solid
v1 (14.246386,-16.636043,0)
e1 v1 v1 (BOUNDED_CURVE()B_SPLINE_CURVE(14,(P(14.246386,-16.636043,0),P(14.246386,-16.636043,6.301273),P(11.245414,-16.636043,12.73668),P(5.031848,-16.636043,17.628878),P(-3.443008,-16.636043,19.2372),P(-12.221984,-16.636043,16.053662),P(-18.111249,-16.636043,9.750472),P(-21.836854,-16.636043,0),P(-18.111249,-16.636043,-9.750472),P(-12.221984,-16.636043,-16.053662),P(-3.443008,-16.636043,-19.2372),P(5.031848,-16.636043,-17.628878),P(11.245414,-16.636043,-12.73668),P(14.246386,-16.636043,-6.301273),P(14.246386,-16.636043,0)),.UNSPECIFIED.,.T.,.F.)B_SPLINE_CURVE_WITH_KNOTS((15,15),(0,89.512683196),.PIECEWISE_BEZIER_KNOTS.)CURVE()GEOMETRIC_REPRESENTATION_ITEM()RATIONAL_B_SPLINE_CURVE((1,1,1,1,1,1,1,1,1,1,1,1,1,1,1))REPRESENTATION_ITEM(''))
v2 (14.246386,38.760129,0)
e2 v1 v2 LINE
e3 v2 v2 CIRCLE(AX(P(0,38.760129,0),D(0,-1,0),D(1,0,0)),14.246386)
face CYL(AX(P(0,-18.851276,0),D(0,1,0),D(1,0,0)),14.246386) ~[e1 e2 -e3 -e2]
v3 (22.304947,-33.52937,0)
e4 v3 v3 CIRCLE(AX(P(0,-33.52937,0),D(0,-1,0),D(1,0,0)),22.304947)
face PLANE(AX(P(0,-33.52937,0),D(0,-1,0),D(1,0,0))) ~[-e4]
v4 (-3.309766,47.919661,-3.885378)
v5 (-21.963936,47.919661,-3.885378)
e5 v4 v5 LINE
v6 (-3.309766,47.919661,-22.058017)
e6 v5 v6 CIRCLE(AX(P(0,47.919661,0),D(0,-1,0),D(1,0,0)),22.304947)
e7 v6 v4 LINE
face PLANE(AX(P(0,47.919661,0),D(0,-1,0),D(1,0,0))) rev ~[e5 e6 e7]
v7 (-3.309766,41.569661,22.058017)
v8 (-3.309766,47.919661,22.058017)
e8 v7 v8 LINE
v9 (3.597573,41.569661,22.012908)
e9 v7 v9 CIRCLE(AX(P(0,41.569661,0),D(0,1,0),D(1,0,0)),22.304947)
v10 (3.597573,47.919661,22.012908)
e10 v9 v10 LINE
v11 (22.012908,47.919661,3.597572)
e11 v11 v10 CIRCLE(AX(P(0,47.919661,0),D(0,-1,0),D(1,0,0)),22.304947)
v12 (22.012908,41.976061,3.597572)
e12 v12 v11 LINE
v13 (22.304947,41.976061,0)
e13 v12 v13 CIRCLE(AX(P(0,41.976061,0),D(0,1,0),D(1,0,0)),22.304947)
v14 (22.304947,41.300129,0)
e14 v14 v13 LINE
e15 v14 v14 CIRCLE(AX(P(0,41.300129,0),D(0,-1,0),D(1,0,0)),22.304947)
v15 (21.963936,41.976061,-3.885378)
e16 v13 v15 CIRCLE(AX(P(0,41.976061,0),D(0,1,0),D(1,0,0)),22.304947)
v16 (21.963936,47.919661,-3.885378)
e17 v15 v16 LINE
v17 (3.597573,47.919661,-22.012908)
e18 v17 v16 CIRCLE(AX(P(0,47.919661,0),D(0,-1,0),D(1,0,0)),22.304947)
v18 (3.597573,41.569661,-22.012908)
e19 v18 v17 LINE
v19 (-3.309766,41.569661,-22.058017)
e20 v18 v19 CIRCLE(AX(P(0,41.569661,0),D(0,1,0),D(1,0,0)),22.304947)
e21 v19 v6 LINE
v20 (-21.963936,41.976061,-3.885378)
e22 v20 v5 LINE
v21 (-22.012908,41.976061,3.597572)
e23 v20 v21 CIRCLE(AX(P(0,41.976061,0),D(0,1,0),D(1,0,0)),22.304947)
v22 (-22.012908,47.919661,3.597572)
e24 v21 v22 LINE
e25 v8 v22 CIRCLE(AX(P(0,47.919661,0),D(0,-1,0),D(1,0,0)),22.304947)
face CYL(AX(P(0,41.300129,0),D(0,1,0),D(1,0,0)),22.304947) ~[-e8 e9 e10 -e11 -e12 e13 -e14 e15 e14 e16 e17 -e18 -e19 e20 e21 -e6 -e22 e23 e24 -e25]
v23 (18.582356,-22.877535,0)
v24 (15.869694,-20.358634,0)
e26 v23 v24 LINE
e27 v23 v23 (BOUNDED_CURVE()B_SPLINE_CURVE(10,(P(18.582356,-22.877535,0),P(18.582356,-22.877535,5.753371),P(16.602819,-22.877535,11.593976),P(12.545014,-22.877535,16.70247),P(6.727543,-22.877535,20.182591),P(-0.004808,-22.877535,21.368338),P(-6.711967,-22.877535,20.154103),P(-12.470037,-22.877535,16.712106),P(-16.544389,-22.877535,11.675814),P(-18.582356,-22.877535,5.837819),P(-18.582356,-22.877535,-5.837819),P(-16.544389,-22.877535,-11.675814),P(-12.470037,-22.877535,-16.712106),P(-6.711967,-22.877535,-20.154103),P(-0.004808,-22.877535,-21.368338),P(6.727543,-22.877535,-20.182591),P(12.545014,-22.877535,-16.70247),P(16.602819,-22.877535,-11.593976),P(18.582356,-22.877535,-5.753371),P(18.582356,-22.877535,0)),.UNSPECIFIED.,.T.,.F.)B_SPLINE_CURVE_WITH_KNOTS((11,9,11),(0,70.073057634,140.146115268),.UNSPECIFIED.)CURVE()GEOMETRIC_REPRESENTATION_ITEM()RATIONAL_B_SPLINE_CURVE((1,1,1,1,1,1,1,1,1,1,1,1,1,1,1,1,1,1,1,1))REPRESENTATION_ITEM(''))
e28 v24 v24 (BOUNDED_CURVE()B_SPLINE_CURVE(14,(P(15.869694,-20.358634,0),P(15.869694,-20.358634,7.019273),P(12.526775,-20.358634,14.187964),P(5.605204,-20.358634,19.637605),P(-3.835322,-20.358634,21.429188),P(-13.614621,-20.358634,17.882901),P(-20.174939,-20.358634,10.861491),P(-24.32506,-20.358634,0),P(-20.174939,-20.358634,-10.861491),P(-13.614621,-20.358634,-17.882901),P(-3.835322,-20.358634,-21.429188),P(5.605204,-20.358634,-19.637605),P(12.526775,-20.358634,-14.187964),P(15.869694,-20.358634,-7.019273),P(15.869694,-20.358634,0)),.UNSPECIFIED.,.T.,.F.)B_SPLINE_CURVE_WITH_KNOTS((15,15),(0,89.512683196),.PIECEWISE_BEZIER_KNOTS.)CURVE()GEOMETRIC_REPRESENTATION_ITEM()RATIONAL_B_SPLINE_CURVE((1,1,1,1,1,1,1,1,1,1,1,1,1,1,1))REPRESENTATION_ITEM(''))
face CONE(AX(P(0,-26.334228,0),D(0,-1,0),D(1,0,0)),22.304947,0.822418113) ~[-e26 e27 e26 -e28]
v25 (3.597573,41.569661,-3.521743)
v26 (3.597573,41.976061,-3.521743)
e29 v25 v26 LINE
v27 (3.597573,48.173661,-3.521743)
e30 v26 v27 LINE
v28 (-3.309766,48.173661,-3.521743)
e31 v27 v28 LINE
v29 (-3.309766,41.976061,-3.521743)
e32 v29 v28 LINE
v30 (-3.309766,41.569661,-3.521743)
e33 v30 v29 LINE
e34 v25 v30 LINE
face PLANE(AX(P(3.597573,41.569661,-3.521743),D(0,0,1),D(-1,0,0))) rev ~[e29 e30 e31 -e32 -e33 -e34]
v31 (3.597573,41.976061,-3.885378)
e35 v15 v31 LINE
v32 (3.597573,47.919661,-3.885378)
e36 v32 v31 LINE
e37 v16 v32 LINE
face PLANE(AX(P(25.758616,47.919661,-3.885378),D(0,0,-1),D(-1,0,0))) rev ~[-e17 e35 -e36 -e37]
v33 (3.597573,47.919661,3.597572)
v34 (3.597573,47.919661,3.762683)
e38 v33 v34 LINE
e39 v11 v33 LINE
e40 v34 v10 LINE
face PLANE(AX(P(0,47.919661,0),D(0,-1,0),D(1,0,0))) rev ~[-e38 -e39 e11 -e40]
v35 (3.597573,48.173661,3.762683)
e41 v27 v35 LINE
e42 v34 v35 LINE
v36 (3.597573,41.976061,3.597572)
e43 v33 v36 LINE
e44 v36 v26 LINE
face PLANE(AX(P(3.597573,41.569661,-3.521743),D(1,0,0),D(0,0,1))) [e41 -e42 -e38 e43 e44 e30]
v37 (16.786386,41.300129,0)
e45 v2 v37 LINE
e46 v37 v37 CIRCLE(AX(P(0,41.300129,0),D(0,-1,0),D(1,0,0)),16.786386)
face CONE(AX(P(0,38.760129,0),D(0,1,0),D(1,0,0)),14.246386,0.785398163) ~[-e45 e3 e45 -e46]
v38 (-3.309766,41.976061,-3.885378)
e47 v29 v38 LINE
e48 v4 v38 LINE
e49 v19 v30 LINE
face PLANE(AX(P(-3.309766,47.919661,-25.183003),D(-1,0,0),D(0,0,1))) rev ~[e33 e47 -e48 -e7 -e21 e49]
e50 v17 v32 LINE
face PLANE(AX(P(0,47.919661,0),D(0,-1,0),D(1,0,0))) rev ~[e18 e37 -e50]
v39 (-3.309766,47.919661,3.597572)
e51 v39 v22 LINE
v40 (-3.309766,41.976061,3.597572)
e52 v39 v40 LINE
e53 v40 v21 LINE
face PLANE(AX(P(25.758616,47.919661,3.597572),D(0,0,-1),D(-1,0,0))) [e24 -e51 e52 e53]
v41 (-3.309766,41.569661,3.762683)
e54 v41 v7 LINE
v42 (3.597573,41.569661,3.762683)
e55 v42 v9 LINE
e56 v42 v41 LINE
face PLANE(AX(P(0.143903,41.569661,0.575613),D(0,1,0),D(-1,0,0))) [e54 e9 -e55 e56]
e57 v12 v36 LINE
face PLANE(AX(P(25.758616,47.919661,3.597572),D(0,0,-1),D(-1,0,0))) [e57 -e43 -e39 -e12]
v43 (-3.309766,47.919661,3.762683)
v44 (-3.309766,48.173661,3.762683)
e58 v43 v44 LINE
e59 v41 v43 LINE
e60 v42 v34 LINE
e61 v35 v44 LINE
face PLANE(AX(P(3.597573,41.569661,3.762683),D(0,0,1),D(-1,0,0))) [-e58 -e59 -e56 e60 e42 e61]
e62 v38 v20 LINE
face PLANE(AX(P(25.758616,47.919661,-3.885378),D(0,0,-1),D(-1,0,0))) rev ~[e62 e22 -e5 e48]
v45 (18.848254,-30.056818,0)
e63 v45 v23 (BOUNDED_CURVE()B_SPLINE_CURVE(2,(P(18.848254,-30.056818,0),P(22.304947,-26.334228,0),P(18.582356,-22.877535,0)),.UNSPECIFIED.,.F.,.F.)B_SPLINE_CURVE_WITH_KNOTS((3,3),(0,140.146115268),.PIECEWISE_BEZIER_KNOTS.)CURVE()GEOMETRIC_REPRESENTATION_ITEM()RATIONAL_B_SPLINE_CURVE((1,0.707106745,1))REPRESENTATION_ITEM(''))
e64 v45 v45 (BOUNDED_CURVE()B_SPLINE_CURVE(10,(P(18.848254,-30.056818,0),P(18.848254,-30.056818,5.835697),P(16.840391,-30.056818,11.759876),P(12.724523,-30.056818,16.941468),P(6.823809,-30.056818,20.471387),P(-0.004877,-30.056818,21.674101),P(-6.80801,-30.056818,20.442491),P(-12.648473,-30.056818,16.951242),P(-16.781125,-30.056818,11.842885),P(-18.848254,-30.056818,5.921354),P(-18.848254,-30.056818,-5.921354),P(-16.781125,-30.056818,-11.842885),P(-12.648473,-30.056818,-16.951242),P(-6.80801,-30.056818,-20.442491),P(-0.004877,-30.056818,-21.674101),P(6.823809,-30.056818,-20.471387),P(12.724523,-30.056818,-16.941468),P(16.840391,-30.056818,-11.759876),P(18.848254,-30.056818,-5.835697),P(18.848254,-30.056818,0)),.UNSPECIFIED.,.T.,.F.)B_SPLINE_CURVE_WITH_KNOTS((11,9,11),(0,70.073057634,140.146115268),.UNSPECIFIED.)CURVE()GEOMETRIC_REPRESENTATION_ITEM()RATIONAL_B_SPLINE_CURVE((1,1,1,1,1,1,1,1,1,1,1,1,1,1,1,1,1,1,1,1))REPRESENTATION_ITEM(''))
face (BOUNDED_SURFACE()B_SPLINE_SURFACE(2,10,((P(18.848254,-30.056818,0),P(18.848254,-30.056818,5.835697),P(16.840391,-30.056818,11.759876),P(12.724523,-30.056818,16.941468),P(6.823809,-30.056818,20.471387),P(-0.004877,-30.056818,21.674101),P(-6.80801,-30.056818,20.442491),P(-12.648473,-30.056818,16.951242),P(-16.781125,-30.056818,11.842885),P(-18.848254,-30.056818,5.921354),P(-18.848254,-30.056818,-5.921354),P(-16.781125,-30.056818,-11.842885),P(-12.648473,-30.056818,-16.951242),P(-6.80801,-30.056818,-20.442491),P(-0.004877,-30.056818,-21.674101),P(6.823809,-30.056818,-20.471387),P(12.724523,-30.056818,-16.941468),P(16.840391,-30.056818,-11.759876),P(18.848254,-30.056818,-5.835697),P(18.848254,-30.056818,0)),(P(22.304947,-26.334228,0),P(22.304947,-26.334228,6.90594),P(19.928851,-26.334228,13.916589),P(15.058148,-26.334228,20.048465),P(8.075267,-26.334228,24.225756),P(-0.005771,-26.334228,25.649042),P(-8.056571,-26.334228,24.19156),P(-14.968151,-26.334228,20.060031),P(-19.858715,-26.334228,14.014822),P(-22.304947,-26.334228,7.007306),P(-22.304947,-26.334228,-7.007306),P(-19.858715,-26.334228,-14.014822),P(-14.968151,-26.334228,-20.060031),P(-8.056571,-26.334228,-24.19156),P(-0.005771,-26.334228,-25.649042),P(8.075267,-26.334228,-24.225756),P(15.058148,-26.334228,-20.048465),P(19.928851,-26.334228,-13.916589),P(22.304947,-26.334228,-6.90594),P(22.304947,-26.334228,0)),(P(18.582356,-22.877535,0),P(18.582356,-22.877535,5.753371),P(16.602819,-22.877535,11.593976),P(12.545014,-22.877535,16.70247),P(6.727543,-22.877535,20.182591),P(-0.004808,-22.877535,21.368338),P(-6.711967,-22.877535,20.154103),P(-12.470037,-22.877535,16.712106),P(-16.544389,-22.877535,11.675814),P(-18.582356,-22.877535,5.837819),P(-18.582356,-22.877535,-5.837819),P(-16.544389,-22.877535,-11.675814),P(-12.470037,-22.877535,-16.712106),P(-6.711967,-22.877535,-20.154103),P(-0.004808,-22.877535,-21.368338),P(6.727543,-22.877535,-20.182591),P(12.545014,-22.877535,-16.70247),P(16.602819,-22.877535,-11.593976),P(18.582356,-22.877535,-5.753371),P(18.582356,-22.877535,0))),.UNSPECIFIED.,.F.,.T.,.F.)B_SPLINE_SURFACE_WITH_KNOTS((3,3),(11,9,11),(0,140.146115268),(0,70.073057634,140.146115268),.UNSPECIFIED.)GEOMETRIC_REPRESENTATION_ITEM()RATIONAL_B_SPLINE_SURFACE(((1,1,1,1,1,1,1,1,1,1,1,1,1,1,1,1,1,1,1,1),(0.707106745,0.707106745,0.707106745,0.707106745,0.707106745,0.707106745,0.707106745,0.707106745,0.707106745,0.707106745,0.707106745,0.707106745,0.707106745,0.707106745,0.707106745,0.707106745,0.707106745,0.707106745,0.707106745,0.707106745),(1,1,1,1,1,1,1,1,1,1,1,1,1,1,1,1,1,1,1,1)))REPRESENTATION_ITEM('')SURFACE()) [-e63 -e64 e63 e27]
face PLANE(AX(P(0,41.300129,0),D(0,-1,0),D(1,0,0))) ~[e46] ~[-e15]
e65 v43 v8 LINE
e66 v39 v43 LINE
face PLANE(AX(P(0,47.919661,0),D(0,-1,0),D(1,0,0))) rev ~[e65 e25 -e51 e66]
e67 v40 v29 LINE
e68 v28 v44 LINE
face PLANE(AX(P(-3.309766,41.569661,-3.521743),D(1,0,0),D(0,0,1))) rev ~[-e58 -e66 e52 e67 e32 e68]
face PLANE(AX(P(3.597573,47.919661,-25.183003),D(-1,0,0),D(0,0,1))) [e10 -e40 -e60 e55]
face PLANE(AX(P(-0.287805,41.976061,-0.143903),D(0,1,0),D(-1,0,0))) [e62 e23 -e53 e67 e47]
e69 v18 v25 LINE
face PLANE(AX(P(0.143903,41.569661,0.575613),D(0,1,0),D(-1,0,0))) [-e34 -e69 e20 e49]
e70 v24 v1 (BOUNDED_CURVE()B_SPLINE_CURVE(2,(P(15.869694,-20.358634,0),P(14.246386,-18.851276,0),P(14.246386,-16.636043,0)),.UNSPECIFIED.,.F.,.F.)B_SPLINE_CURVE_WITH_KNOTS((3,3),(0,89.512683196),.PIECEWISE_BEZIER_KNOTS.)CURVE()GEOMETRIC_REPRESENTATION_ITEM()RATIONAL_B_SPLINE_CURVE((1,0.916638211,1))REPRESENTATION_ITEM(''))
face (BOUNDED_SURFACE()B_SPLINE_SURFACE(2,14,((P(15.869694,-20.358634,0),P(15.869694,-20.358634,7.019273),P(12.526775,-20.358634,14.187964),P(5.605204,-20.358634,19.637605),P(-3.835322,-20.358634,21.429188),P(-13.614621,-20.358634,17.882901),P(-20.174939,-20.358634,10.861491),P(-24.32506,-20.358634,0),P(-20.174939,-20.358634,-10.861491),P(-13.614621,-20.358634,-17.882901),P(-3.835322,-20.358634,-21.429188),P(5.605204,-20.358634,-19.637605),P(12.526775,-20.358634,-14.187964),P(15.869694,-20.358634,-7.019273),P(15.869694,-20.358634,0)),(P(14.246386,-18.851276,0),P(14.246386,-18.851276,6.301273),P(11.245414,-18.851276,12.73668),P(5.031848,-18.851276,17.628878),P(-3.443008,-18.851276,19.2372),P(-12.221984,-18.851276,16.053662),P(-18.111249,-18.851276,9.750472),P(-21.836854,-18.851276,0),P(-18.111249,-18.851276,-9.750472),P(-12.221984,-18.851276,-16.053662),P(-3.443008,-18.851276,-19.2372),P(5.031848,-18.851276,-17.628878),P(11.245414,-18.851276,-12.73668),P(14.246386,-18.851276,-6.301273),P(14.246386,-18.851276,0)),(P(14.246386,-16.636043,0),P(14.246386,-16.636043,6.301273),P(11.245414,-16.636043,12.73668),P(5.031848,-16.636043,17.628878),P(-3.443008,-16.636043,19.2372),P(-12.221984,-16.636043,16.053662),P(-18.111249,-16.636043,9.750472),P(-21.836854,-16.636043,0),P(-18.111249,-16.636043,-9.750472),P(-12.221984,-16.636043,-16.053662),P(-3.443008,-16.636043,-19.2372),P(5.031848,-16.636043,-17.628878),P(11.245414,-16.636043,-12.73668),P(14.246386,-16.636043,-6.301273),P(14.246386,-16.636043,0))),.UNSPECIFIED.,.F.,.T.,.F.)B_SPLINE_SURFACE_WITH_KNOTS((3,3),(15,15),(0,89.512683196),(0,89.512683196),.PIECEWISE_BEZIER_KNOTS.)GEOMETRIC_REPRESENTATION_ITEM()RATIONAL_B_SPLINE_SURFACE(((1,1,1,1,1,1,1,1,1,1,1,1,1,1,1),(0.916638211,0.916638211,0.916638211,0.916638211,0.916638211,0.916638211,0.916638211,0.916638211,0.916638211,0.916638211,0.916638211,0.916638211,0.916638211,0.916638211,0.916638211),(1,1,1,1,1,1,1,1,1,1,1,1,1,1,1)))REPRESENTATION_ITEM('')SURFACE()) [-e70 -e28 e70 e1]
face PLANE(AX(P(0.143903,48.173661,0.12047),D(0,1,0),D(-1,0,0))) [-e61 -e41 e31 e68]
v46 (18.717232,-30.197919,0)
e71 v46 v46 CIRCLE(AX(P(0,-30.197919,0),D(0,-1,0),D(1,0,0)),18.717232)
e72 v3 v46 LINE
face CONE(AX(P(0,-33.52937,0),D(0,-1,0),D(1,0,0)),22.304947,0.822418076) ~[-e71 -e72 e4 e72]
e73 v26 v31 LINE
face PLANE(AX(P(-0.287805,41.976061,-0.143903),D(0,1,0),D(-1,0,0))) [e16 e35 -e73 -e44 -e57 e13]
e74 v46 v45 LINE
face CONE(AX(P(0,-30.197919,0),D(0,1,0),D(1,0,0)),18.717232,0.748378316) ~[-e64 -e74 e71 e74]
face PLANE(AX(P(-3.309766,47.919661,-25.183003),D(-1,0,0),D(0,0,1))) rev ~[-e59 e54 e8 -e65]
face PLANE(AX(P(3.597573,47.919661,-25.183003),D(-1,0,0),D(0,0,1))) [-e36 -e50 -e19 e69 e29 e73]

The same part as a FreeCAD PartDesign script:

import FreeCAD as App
import Part
import Sketcher

V = App.Vector
Q = App.Units.Quantity


def edges_at(feature, points):
    """Names of the edges that pass closest to the given points."""
    edges = feature.Shape.Edges
    near = lambda p: min(range(len(edges)), key=lambda i: edges[i].distToShape(Part.Vertex(*p))[0])
    return sorted({f"Edge{near(p) + 1}" for p in points})

doc = App.newDocument("Part")
body = doc.addObject("PartDesign::Body", "Body")

# Sketch on XY plane
sketch1 = doc.addObject("Sketcher::SketchObject", "Sketch")
body.addObject(sketch1)
sketch1.AttachmentSupport = (doc.XY_Plane, [""])
sketch1.MapMode = "FlatFace"
sketch1.addGeometry([
    Part.LineSegment(V(22.3, 47.9, 0), V(0, 47.9, 0)),  # 0
    Part.LineSegment(V(0, 47.9, 0), V(0, -33.5, 0)),  # 1
    Part.LineSegment(V(0, -33.5, 0), V(22.3, -33.5, 0)),  # 2
    Part.LineSegment(V(22.3, -33.5, 0), V(18.7, -30.2, 0)),  # 3
    Part.LineSegment(V(18.7, -30.2, 0), V(22.3, -26.3, 0)),  # 4
    Part.LineSegment(V(22.3, -26.3, 0), V(14.2, -18.9, 0)),  # 5
    Part.LineSegment(V(14.2, -18.9, 0), V(14.2, 41.3, 0)),  # 6
    Part.LineSegment(V(14.2, 41.3, 0), V(22.3, 41.3, 0)),  # 7
    Part.LineSegment(V(22.3, 41.3, 0), V(22.3, 47.9, 0)),  # 8
], False)
sketch1.addConstraint([
    Sketcher.Constraint("Coincident", 0, 2, 1, 1),
    Sketcher.Constraint("Coincident", 1, 2, 2, 1),
    Sketcher.Constraint("Coincident", 2, 2, 3, 1),
    Sketcher.Constraint("Coincident", 3, 2, 4, 1),
    Sketcher.Constraint("Coincident", 4, 2, 5, 1),
    Sketcher.Constraint("Coincident", 5, 2, 6, 1),
    Sketcher.Constraint("Coincident", 6, 2, 7, 1),
    Sketcher.Constraint("Coincident", 7, 2, 8, 1),
    Sketcher.Constraint("Coincident", 8, 2, 0, 1),
    Sketcher.Constraint("Horizontal", 0),
    Sketcher.Constraint("Vertical", 1),
    Sketcher.Constraint("Horizontal", 2),
    Sketcher.Constraint("Vertical", 6),
    Sketcher.Constraint("Horizontal", 7),
    Sketcher.Constraint("Vertical", 8),
    Sketcher.Constraint("PointOnObject", 0, 2, -2),
    Sketcher.Constraint("Perpendicular", 3, 4),
    Sketcher.Constraint("Perpendicular", 4, 5),
    Sketcher.Constraint("Vertical", 2, 2, 4, 2),
    Sketcher.Constraint("Vertical", 4, 2, 7, 2),
    Sketcher.Constraint("DistanceX", 7, 1, 7, 2, 8.058561),
    Sketcher.Constraint("DistanceY", 1, 2, 1, 1, 81.449031),
    Sketcher.Constraint("DistanceY", 8, 1, 8, 2, 6.619532),
    Sketcher.Constraint("DistanceX", 0, 2, 0, 1, 22.304947),
    Sketcher.Constraint("DistanceY", 6, 1, 6, 2, 60.151405),
    Sketcher.Constraint("DistanceY", -1, 1, 0, 2, 47.919661),
    Sketcher.Constraint("DistanceX", -1, 1, 3, 2, 18.717232),
])
revolution = doc.addObject("PartDesign::Revolution", "Revolution")
body.addObject(revolution)
revolution.Profile = sketch1
revolution.ReferenceAxis = (sketch1, ["V_Axis"])
revolution.Angle = 360
doc.recompute()

fillet = doc.addObject("PartDesign::Fillet", "Fillet")
body.addObject(fillet)
fillet.Base = (revolution, edges_at(revolution, [(-22.305, -26.334, 0), (-14.246, -18.851, 0)]))
fillet.Radius = Q("0.2 in")
doc.recompute()

chamfer = doc.addObject("PartDesign::Chamfer", "Chamfer")
body.addObject(chamfer)
chamfer.Base = (fillet, edges_at(fillet, [(14.246, 12.332, 0), (-14.246, -16.636, 0), (-14.246, 41.3, 0)]))
chamfer.Size = Q("0.1 in")

# Sketch on XZ plane
sketch2 = doc.addObject("Sketcher::SketchObject", "Sketch001")
body.addObject(sketch2)
sketch2.AttachmentSupport = (doc.XZ_Plane, [""])
sketch2.MapMode = "FlatFace"
sketch2.AttachmentOffset = App.Placement(V(0, 0, -47.919661), App.Rotation())
sketch2.addGeometry([
    Part.LineSegment(V(4, 26, 0), V(4, -25, 0)),
    Part.LineSegment(V(4, -25, 0), V(-3, -25, 0)),
    Part.LineSegment(V(-3, -25, 0), V(-3, 26, 0)),
    Part.LineSegment(V(-3, 26, 0), V(4, 26, 0)),
], False)
sketch2.addConstraint([
    Sketcher.Constraint("Coincident", 0, 2, 1, 1),
    Sketcher.Constraint("Coincident", 1, 2, 2, 1),
    Sketcher.Constraint("Coincident", 2, 2, 3, 1),
    Sketcher.Constraint("Coincident", 3, 2, 0, 1),
    Sketcher.Constraint("Vertical", 0),
    Sketcher.Constraint("Horizontal", 1),
    Sketcher.Constraint("Vertical", 2),
    Sketcher.Constraint("Horizontal", 3),
    Sketcher.Constraint("DistanceX", 1, 2, 1, 1, 6.907339),
    Sketcher.Constraint("DistanceY", 0, 2, 0, 1, 51.517231),
    Sketcher.Constraint("DistanceY", -1, 1, 2, 2, 26.334228),
    Sketcher.Constraint("DistanceX", -1, 1, 0, 2, 3.597573),
])
pocket1 = doc.addObject("PartDesign::Pocket", "Pocket")
body.addObject(pocket1)
pocket1.Profile = sketch2
pocket1.Length = Q("0.25 in")
pocket1.Reversed = True

# Sketch on XZ plane
sketch3 = doc.addObject("Sketcher::SketchObject", "Sketch002")
body.addObject(sketch3)
sketch3.AttachmentSupport = (doc.XZ_Plane, [""])
sketch3.MapMode = "FlatFace"
sketch3.AttachmentOffset = App.Placement(V(0, 0, -47.919661), App.Rotation())
sketch3.addGeometry([
    Part.LineSegment(V(26, 4, 0), V(26, -4, 0)),
    Part.LineSegment(V(26, -4, 0), V(-26, -4, 0)),
    Part.LineSegment(V(-26, -4, 0), V(-26, 4, 0)),
    Part.LineSegment(V(-26, 4, 0), V(26, 4, 0)),
], False)
sketch3.addConstraint([
    Sketcher.Constraint("Coincident", 0, 2, 1, 1),
    Sketcher.Constraint("Coincident", 1, 2, 2, 1),
    Sketcher.Constraint("Coincident", 2, 2, 3, 1),
    Sketcher.Constraint("Coincident", 3, 2, 0, 1),
    Sketcher.Constraint("Vertical", 0),
    Sketcher.Constraint("Horizontal", 1),
    Sketcher.Constraint("Vertical", 2),
    Sketcher.Constraint("Horizontal", 3),
    Sketcher.Constraint("DistanceX", 1, 2, 1, 1, 52.092841),
    Sketcher.Constraint("DistanceY", 0, 2, 0, 1, 7.48295),
    Sketcher.Constraint("DistanceY", 0, 2, -1, 1, 3.885378),
    Sketcher.Constraint("DistanceX", -1, 1, 0, 2, 25.758616),
])
pocket2 = doc.addObject("PartDesign::Pocket", "Pocket001")
body.addObject(pocket2)
pocket2.Profile = sketch3
pocket2.Length = Q("0.234 in")
pocket2.Reversed = True

# Sketch on XZ plane
sketch4 = doc.addObject("Sketcher::SketchObject", "Sketch003")
body.addObject(sketch4)
sketch4.AttachmentSupport = (doc.XZ_Plane, [""])
sketch4.MapMode = "FlatFace"
sketch4.AttachmentOffset = App.Placement(V(0, 0, -41.569661), App.Rotation())
sketch4.addGeometry([
    Part.LineSegment(V(4, 4, 0), V(4, -4, 0)),
    Part.LineSegment(V(4, -4, 0), V(-3, -4, 0)),
    Part.LineSegment(V(-3, -4, 0), V(-3, 4, 0)),
    Part.LineSegment(V(-3, 4, 0), V(4, 4, 0)),
], False)
sketch4.addConstraint([
    Sketcher.Constraint("Coincident", 0, 2, 1, 1),
    Sketcher.Constraint("Coincident", 1, 2, 2, 1),
    Sketcher.Constraint("Coincident", 2, 2, 3, 1),
    Sketcher.Constraint("Coincident", 3, 2, 0, 1),
    Sketcher.Constraint("Vertical", 0),
    Sketcher.Constraint("Horizontal", 1),
    Sketcher.Constraint("Vertical", 2),
    Sketcher.Constraint("Horizontal", 3),
    Sketcher.Constraint("DistanceX", 1, 2, 1, 1, 6.907339),
    Sketcher.Constraint("DistanceY", 0, 2, 0, 1, 7.284426),
    Sketcher.Constraint("DistanceX", -1, 1, 0, 2, 3.597573),
    Sketcher.Constraint("DistanceY", 0, 2, -1, 1, 3.521743),
])
pad1 = doc.addObject("PartDesign::Pad", "Pad")
body.addObject(pad1)
pad1.Profile = sketch4
pad1.Length = Q("0.26 in")
pad1.Reversed = True

doc.recompute()
